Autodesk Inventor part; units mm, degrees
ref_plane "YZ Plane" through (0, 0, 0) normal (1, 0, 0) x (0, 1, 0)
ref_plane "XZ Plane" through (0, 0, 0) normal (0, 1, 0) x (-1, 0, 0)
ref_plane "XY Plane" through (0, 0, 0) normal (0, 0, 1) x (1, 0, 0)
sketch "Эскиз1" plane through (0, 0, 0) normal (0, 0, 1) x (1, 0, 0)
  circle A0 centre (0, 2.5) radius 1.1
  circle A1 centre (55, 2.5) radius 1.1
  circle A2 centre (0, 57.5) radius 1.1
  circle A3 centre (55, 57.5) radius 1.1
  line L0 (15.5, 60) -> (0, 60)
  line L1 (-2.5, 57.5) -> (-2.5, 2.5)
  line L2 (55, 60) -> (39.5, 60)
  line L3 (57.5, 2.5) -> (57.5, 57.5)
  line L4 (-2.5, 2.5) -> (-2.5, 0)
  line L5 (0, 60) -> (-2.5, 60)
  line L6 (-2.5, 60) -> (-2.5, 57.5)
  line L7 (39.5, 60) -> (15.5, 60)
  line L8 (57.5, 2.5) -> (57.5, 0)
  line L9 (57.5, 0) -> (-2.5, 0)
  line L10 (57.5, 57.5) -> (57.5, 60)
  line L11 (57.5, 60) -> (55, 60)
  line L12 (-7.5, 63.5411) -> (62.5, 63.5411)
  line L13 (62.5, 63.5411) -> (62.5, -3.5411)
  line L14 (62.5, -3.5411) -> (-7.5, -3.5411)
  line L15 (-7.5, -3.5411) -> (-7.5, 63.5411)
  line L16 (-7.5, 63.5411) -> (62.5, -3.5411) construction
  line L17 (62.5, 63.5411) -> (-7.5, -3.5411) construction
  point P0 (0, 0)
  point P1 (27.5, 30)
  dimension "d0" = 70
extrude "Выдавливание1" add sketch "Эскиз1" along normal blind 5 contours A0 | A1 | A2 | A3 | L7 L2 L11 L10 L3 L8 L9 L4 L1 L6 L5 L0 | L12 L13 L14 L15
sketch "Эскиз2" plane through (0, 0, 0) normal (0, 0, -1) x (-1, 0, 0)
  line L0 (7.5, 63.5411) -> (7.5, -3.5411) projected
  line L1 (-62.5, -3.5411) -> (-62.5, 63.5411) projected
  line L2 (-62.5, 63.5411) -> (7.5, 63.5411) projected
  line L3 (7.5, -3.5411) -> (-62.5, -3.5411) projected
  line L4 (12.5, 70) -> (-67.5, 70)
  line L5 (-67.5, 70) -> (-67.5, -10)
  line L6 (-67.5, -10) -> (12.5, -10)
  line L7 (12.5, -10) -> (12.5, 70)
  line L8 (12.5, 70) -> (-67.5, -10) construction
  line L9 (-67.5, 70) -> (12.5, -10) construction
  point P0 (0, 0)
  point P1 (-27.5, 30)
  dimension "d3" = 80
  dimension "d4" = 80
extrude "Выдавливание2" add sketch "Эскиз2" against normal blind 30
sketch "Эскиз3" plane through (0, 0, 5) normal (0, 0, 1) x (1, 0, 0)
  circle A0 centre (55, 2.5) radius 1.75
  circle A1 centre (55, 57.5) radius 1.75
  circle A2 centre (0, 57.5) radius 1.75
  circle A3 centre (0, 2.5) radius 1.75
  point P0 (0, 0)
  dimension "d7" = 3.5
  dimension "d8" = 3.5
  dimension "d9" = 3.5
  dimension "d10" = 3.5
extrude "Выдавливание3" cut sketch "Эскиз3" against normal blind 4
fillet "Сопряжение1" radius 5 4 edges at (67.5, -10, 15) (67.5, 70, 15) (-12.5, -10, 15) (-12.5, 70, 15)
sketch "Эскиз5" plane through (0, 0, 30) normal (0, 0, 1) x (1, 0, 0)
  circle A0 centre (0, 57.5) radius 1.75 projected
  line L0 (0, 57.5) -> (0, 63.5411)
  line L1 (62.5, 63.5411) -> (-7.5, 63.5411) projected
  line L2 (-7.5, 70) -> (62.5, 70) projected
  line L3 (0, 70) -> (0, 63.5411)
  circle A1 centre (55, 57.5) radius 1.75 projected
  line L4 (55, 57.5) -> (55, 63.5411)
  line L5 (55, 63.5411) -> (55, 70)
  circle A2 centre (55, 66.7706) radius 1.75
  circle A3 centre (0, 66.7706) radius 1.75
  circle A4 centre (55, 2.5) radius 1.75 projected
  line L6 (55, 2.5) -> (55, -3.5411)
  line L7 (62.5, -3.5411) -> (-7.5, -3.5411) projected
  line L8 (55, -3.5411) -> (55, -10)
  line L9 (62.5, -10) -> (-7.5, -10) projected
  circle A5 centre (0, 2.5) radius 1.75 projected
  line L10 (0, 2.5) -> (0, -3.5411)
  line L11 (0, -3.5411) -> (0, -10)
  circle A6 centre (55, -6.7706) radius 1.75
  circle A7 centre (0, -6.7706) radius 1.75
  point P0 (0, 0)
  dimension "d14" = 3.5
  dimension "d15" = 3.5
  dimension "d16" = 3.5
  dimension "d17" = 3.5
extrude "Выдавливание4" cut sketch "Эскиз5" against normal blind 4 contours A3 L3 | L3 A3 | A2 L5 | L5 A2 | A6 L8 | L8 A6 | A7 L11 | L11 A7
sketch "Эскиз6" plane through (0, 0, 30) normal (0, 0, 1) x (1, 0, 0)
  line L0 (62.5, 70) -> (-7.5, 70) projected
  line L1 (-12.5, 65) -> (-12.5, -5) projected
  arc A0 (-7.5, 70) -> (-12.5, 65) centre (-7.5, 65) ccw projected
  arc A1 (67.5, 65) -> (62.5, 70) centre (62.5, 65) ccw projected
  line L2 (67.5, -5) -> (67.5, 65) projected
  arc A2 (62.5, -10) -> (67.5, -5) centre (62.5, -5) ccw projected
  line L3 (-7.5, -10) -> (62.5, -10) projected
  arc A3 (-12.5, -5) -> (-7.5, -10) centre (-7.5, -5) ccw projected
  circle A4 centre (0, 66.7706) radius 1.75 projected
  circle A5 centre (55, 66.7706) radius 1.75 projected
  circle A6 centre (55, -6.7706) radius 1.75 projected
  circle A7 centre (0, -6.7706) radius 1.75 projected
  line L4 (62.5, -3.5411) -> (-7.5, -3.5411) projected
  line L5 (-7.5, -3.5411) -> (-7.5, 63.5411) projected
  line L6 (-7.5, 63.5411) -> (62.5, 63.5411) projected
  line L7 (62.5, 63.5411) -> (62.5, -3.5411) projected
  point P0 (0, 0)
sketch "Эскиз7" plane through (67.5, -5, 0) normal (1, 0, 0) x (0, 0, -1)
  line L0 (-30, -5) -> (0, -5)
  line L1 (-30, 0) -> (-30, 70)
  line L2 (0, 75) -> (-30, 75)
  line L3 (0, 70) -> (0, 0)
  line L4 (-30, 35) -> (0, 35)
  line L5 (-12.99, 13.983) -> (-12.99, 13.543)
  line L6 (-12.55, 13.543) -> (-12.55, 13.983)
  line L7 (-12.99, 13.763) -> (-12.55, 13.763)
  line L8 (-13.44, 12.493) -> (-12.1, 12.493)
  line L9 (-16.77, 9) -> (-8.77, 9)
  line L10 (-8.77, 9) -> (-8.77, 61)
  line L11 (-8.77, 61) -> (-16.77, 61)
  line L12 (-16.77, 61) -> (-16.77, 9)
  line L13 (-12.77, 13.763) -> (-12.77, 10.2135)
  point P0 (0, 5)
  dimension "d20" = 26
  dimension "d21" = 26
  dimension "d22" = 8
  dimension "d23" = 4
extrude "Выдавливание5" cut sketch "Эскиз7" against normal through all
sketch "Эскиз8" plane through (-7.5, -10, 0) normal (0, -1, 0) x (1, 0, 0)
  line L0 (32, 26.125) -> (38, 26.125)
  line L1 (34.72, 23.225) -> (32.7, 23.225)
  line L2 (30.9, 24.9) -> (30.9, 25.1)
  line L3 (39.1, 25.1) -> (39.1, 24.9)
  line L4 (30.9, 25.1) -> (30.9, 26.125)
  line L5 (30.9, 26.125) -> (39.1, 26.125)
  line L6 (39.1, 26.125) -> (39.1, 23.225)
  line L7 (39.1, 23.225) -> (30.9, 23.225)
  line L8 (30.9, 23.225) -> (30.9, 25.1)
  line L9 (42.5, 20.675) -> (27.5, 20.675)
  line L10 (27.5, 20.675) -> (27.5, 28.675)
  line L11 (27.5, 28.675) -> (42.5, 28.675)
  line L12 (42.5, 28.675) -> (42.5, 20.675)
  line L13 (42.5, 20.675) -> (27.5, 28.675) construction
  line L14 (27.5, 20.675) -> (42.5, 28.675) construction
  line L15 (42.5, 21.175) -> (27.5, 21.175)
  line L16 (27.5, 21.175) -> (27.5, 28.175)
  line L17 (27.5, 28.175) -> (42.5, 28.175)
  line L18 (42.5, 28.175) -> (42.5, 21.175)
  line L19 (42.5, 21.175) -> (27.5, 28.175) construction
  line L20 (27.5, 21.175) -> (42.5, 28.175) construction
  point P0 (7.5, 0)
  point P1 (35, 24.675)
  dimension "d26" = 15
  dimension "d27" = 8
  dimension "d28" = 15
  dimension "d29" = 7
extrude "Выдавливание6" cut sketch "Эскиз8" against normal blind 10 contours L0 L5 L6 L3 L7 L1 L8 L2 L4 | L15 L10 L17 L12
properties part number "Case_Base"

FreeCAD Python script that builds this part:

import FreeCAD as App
import Part
import Sketcher
from FreeCAD import Vector


def edges_at(feature, points):
    """Names of the edges that pass closest to the given points."""
    edges = feature.Shape.Edges
    near = lambda p: min(range(len(edges)), key=lambda i: edges[i].distToShape(Part.Vertex(*p))[0])
    return sorted({f"Edge{near(p) + 1}" for p in points})

doc = App.newDocument("Part")
body = doc.addObject("PartDesign::Body", "Body")

sketch1 = doc.addObject("Sketcher::SketchObject", "Sketch")
body.addObject(sketch1)
sketch1.AttachmentSupport = (doc.XY_Plane, [""])
sketch1.MapMode = "FlatFace"
sketch1.addGeometry([
    Part.LineSegment(Vector(62, 64, 0), Vector(-8, 64, 0)),
    Part.LineSegment(Vector(-8, 64, 0), Vector(-8, -4, 0)),
    Part.LineSegment(Vector(-8, -4, 0), Vector(62, -4, 0)),
    Part.LineSegment(Vector(62, -4, 0), Vector(62, 64, 0)),
], False)
sketch1.addConstraint([
    Sketcher.Constraint("Coincident", 0, 2, 1, 1),
    Sketcher.Constraint("Coincident", 1, 2, 2, 1),
    Sketcher.Constraint("Coincident", 2, 2, 3, 1),
    Sketcher.Constraint("Coincident", 3, 2, 0, 1),
    Sketcher.Constraint("Horizontal", 0),
    Sketcher.Constraint("Vertical", 1),
    Sketcher.Constraint("Horizontal", 2),
    Sketcher.Constraint("Vertical", 3),
    Sketcher.Constraint("DistanceX", 0, 2, 0, 1, 70.0),
    Sketcher.Constraint("DistanceX", 0, 2, -1, 1, 7.5),
    Sketcher.Constraint("DistanceY", 1, 2, 1, 1, 67.0822),
    Sketcher.Constraint("DistanceY", -1, 1, 0, 2, 63.541),
])
pad1 = doc.addObject("PartDesign::Pad", "Pad")
body.addObject(pad1)
pad1.Profile = sketch1
pad1.Length = 5

sketch2 = doc.addObject("Sketcher::SketchObject", "Sketch001")
body.addObject(sketch2)
sketch2.AttachmentSupport = (doc.XY_Plane, [""])
sketch2.MapMode = "FlatFace"
sketch2.addGeometry([
    Part.LineSegment(Vector(-12, -10, 0), Vector(-12, 70, 0)),
    Part.LineSegment(Vector(-12, 70, 0), Vector(68, 70, 0)),
    Part.LineSegment(Vector(68, 70, 0), Vector(68, -10, 0)),
    Part.LineSegment(Vector(68, -10, 0), Vector(-12, -10, 0)),
    Part.LineSegment(Vector(62, 64, 0), Vector(-8, 64, 0)),
    Part.LineSegment(Vector(-8, 64, 0), Vector(-8, -4, 0)),
    Part.LineSegment(Vector(-8, -4, 0), Vector(62, -4, 0)),
    Part.LineSegment(Vector(62, -4, 0), Vector(62, 64, 0)),
], False)
sketch2.addConstraint([
    Sketcher.Constraint("Coincident", 0, 2, 1, 1),
    Sketcher.Constraint("Coincident", 1, 2, 2, 1),
    Sketcher.Constraint("Coincident", 2, 2, 3, 1),
    Sketcher.Constraint("Coincident", 3, 2, 0, 1),
    Sketcher.Constraint("Coincident", 4, 2, 5, 1),
    Sketcher.Constraint("Coincident", 5, 2, 6, 1),
    Sketcher.Constraint("Coincident", 6, 2, 7, 1),
    Sketcher.Constraint("Coincident", 7, 2, 4, 1),
    Sketcher.Constraint("Vertical", 0),
    Sketcher.Constraint("Horizontal", 1),
    Sketcher.Constraint("Vertical", 2),
    Sketcher.Constraint("Horizontal", 3),
    Sketcher.Constraint("Horizontal", 4),
    Sketcher.Constraint("Vertical", 5),
    Sketcher.Constraint("Horizontal", 6),
    Sketcher.Constraint("Vertical", 7),
    Sketcher.Constraint("Equal", 3, 0),
    Sketcher.Constraint("DistanceX", 1, 1, 1, 2, 80.0),
    Sketcher.Constraint("DistanceX", 4, 2, 4, 1, 70.0),
    Sketcher.Constraint("DistanceY", -1, 1, 0, 2, 70.0),
    Sketcher.Constraint("DistanceX", 0, 2, 4, 2, 5.0),
    Sketcher.Constraint("DistanceX", 0, 2, -1, 1, 12.5),
    Sketcher.Constraint("DistanceY", 5, 2, 5, 1, 67.0822),
    Sketcher.Constraint("DistanceY", -1, 1, 4, 2, 63.541),
])
pad2 = doc.addObject("PartDesign::Pad", "Pad001")
body.addObject(pad2)
pad2.Profile = sketch2
pad2.Length = 30

sketch3 = doc.addObject("Sketcher::SketchObject", "Sketch002")
body.addObject(sketch3)
sketch3.AttachmentSupport = (doc.XY_Plane, [""])
sketch3.MapMode = "FlatFace"
sketch3.AttachmentOffset = App.Placement(Vector(0, 0, 5), App.Rotation())
sketch3.addGeometry([
    Part.Circle(Vector(55, 2.5, 0), Vector(0, 0, 1), 1.8),
    Part.Circle(Vector(55, 57.5, 0), Vector(0, 0, 1), 1.8),
    Part.Circle(Vector(0, 57.5, 0), Vector(0, 0, 1), 1.8),
    Part.Circle(Vector(0, 2.5, 0), Vector(0, 0, 1), 1.8),
], False)
sketch3.addConstraint([
    Sketcher.Constraint("Equal", 0, 1),
    Sketcher.Constraint("Equal", 1, 2),
    Sketcher.Constraint("Equal", 2, 3),
    Sketcher.Constraint("PointOnObject", 2, 3, -2),
    Sketcher.Constraint("PointOnObject", 3, 3, -2),
    Sketcher.Constraint("Horizontal", 1, 3, 2, 3),
    Sketcher.Constraint("Horizontal", 0, 3, 3, 3),
    Sketcher.Constraint("Vertical", 0, 3, 1, 3),
    Sketcher.Constraint("Diameter", 0, 3.5),
    Sketcher.Constraint("DistanceX", -1, 1, 0, 3, 55.0),
    Sketcher.Constraint("DistanceY", 0, 3, 1, 3, 55.0),
    Sketcher.Constraint("DistanceY", -1, 1, 0, 3, 2.5),
])
pocket1 = doc.addObject("PartDesign::Pocket", "Pocket")
body.addObject(pocket1)
pocket1.Profile = sketch3
pocket1.Length = 4
doc.recompute()

fillet = doc.addObject("PartDesign::Fillet", "Fillet")
body.addObject(fillet)
fillet.Base = (pocket1, edges_at(pocket1, [
    (67.5, -10, 15),
    (67.5, 70, 15),
    (-12.5, -10, 15),
    (-12.5, 70, 15),
]))
fillet.Radius = 5

sketch4 = doc.addObject("Sketcher::SketchObject", "Sketch003")
body.addObject(sketch4)
sketch4.AttachmentSupport = (doc.XY_Plane, [""])
sketch4.MapMode = "FlatFace"
sketch4.AttachmentOffset = App.Placement(Vector(0, 0, 30), App.Rotation())
sketch4.addGeometry([
    Part.Circle(Vector(0, 66.8, 0), Vector(0, 0, 1), 1.8),
    Part.Circle(Vector(55, 66.8, 0), Vector(0, 0, 1), 1.8),
    Part.Circle(Vector(55, -6.8, 0), Vector(0, 0, 1), 1.8),
    Part.Circle(Vector(0, -6.8, 0), Vector(0, 0, 1), 1.8),
], False)
sketch4.addConstraint([
    Sketcher.Constraint("Equal", 0, 1),
    Sketcher.Constraint("Equal", 1, 2),
    Sketcher.Constraint("Equal", 2, 3),
    Sketcher.Constraint("PointOnObject", 0, 3, -2),
    Sketcher.Constraint("PointOnObject", 3, 3, -2),
    Sketcher.Constraint("Horizontal", 0, 3, 1, 3),
    Sketcher.Constraint("Horizontal", 2, 3, 3, 3),
    Sketcher.Constraint("Vertical", 1, 3, 2, 3),
    Sketcher.Constraint("Diameter", 0, 3.5),
    Sketcher.Constraint("DistanceX", -1, 1, 1, 3, 55.0),
    Sketcher.Constraint("DistanceY", -1, 1, 0, 3, 66.7706),
    Sketcher.Constraint("DistanceY", 2, 3, -1, 1, 6.7706),
])
pocket2 = doc.addObject("PartDesign::Pocket", "Pocket001")
body.addObject(pocket2)
pocket2.Profile = sketch4
pocket2.Length = 4

sketch5 = doc.addObject("Sketcher::SketchObject", "Sketch004")
body.addObject(sketch5)
sketch5.AttachmentSupport = (doc.YZ_Plane, [""])
sketch5.MapMode = "FlatFace"
sketch5.AttachmentOffset = App.Placement(Vector(0, 0, 67.5), App.Rotation())
sketch5.addGeometry([
    Part.LineSegment(Vector(56, 17, 0), Vector(4, 17, 0)),
    Part.LineSegment(Vector(4, 17, 0), Vector(4, 9, 0)),
    Part.LineSegment(Vector(4, 9, 0), Vector(56, 9, 0)),
    Part.LineSegment(Vector(56, 9, 0), Vector(56, 17, 0)),
], False)
sketch5.addConstraint([
    Sketcher.Constraint("Coincident", 0, 2, 1, 1),
    Sketcher.Constraint("Coincident", 1, 2, 2, 1),
    Sketcher.Constraint("Coincident", 2, 2, 3, 1),
    Sketcher.Constraint("Coincident", 3, 2, 0, 1),
    Sketcher.Constraint("Horizontal", 0),
    Sketcher.Constraint("Vertical", 1),
    Sketcher.Constraint("Horizontal", 2),
    Sketcher.Constraint("Vertical", 3),
    Sketcher.Constraint("DistanceY", 1, 2, 1, 1, 8.0),
    Sketcher.Constraint("DistanceX", -1, 1, 0, 2, 4.0),
    Sketcher.Constraint("DistanceX", 0, 2, 0, 1, 52.0),
    Sketcher.Constraint("DistanceY", -1, 1, 0, 2, 16.77),
])
pocket3 = doc.addObject("PartDesign::Pocket", "Pocket002")
body.addObject(pocket3)
pocket3.Profile = sketch5
pocket3.Type = "ThroughAll"

sketch6 = doc.addObject("Sketcher::SketchObject", "Sketch005")
body.addObject(sketch6)
sketch6.AttachmentSupport = (doc.XZ_Plane, [""])
sketch6.MapMode = "FlatFace"
sketch6.AttachmentOffset = App.Placement(Vector(0, 0, 10), App.Rotation())
sketch6.addGeometry([
    Part.LineSegment(Vector(20, 21, 0), Vector(35, 21, 0)),
    Part.LineSegment(Vector(35, 21, 0), Vector(35, 28, 0)),
    Part.LineSegment(Vector(35, 28, 0), Vector(20, 28, 0)),
    Part.LineSegment(Vector(20, 28, 0), Vector(20, 21, 0)),
], False)
sketch6.addConstraint([
    Sketcher.Constraint("Coincident", 0, 2, 1, 1),
    Sketcher.Constraint("Coincident", 1, 2, 2, 1),
    Sketcher.Constraint("Coincident", 2, 2, 3, 1),
    Sketcher.Constraint("Coincident", 3, 2, 0, 1),
    Sketcher.Constraint("Horizontal", 0),
    Sketcher.Constraint("Vertical", 1),
    Sketcher.Constraint("Horizontal", 2),
    Sketcher.Constraint("Vertical", 3),
    Sketcher.Constraint("DistanceX", 0, 1, 0, 2, 15.0),
    Sketcher.Constraint("DistanceY", 1, 1, 1, 2, 7.0),
    Sketcher.Constraint("DistanceX", -1, 1, 0, 2, 35.0),
    Sketcher.Constraint("DistanceY", -1, 1, 0, 2, 21.175),
])
pocket4 = doc.addObject("PartDesign::Pocket", "Pocket003")
body.addObject(pocket4)
pocket4.Profile = sketch6
pocket4.Length = 10

doc.recompute()
